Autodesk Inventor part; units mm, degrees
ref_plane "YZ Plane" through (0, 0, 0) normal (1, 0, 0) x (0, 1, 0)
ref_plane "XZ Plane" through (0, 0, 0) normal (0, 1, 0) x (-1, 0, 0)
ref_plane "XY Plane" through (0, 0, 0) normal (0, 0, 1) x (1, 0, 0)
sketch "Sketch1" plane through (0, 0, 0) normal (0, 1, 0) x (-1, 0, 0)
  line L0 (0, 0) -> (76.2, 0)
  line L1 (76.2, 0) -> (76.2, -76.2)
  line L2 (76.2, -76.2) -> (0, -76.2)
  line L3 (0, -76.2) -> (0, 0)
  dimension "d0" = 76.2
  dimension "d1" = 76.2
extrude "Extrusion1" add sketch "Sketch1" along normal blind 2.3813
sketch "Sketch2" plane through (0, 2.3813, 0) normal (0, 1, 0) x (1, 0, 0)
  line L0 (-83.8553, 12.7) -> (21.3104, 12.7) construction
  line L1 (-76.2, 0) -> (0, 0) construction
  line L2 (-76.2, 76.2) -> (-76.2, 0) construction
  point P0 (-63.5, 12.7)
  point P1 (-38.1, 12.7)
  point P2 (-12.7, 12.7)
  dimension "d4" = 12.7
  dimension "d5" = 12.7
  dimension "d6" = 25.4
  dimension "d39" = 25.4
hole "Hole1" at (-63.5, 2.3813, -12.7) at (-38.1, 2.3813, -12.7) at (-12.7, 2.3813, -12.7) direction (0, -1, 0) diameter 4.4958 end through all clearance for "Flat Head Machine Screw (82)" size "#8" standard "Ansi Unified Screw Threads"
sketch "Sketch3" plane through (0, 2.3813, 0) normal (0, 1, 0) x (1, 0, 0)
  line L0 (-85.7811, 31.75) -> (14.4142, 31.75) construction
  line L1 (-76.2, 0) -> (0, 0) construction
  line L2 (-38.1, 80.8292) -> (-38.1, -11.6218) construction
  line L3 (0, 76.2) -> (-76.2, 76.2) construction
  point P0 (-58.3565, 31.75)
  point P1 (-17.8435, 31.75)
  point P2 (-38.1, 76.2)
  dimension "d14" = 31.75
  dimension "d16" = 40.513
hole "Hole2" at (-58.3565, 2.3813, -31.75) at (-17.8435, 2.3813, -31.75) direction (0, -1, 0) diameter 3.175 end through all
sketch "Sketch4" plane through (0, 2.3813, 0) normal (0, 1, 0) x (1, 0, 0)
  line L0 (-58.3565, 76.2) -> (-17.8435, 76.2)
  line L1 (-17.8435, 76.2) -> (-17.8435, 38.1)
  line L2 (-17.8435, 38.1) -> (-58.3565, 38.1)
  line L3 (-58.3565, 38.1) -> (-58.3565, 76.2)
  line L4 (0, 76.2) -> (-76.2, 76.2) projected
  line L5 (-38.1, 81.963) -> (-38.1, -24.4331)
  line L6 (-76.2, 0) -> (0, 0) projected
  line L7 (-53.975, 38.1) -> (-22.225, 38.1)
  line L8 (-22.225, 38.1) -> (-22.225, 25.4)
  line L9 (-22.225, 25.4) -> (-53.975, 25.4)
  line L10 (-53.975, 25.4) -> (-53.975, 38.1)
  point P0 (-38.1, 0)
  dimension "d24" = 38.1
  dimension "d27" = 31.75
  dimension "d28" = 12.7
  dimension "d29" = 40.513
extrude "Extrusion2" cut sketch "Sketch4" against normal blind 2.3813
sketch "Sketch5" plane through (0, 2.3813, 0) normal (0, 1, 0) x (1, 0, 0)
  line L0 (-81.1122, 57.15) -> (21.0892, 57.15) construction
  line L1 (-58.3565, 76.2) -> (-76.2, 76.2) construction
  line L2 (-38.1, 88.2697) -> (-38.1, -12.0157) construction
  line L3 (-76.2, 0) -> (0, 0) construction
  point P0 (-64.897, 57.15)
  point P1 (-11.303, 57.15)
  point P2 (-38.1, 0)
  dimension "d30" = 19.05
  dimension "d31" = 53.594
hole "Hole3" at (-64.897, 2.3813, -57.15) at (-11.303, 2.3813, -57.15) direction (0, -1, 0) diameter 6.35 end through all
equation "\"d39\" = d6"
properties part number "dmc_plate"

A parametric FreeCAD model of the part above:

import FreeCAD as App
import Part
import Sketcher

V = App.Vector
Q = App.Units.Quantity

doc = App.newDocument("Part")
body = doc.addObject("PartDesign::Body", "Body")

sketch1 = body.newObject("Sketcher::SketchObject", "Sketch")
sketch1.AttachmentSupport = (doc.getObject("XZ_Plane"), [""])
sketch1.MapMode = "FlatFace"
sketch1.addGeometry(Part.LineSegment(V(-76.2, 0, 0), V(0, 0, 0)), False)
sketch1.addGeometry(Part.LineSegment(V(0, 0, 0), V(0, -76.2, 0)), False)
sketch1.addGeometry(Part.LineSegment(V(0, -76.2, 0), V(-76.2, -76.2, 0)), False)
sketch1.addGeometry(Part.LineSegment(V(-76.2, -76.2, 0), V(-76.2, 0, 0)), False)
sketch1.addConstraint(Sketcher.Constraint("Coincident", 0, 2, 1, 1))
sketch1.addConstraint(Sketcher.Constraint("Coincident", 1, 2, 2, 1))
sketch1.addConstraint(Sketcher.Constraint("Coincident", 2, 2, 3, 1))
sketch1.addConstraint(Sketcher.Constraint("Coincident", 3, 2, 0, 1))
sketch1.addConstraint(Sketcher.Constraint("Horizontal", 0))
sketch1.addConstraint(Sketcher.Constraint("Vertical", 1))
sketch1.addConstraint(Sketcher.Constraint("Horizontal", 2))
sketch1.addConstraint(Sketcher.Constraint("Vertical", 3))
sketch1.addConstraint(Sketcher.Constraint("Coincident", 0, 2, -1, 1))
sketch1.addConstraint(Sketcher.Constraint("Equal", 2, 1))
sketch1.addConstraint(Sketcher.Constraint("DistanceX", 0, 1, 0, 2, Q("3 in")))
pad1 = body.newObject("PartDesign::Pad", "Pad")
pad1.Profile = sketch1
pad1.Length = Q("0.093752 in")
pad1.Reversed = True

sketch2 = body.newObject("Sketcher::SketchObject", "Sketch001")
sketch2.AttachmentSupport = (doc.getObject("XZ_Plane"), [""])
sketch2.MapMode = "FlatFace"
sketch2.AttachmentOffset = App.Placement(V(0, 0, -0.093752 * 25.4), App.Rotation())
sketch2.addGeometry(Part.Circle(V(-63.5, -12.7, 0), V(0, 0, 1), 2.2479), False)
sketch2.addGeometry(Part.Circle(V(-38.1, -12.7, 0), V(0, 0, 1), 2.2479), False)
sketch2.addGeometry(Part.Circle(V(-12.7, -12.7, 0), V(0, 0, 1), 2.2479), False)
sketch2.addConstraint(Sketcher.Constraint("Equal", 0, 1))
sketch2.addConstraint(Sketcher.Constraint("Equal", 1, 2))
sketch2.addConstraint(Sketcher.Constraint("Horizontal", 0, 3, 1, 3))
sketch2.addConstraint(Sketcher.Constraint("Horizontal", 1, 3, 2, 3))
sketch2.addConstraint(Sketcher.Constraint("Diameter", 0, Q("0.177 in")))
sketch2.addConstraint(Sketcher.Constraint("DistanceX", 0, 3, 1, 3, Q("1 in")))
sketch2.addConstraint(Sketcher.Constraint("DistanceX", 1, 3, 2, 3, Q("1 in")))
sketch2.addConstraint(Sketcher.Constraint("DistanceX", 0, 3, -1, 1, Q("2.5 in")))
sketch2.addConstraint(Sketcher.Constraint("DistanceY", 0, 3, -1, 1, Q("0.5 in")))
doc.recompute()
hole = body.newObject("PartDesign::Hole", "Hole")
hole.Profile = sketch2
hole.ThreadType = "None"
hole.Diameter = Q("0.177 in")
hole.DepthType = "ThroughAll"
hole.Reversed = True

sketch3 = body.newObject("Sketcher::SketchObject", "Sketch002")
sketch3.AttachmentSupport = (doc.getObject("XZ_Plane"), [""])
sketch3.MapMode = "FlatFace"
sketch3.AttachmentOffset = App.Placement(V(0, 0, -0.093752 * 25.4), App.Rotation())
sketch3.addGeometry(Part.Circle(V(-58.3565, -31.75, 0), V(0, 0, 1), 1.5875), False)
sketch3.addGeometry(Part.Circle(V(-17.8435, -31.75, 0), V(0, 0, 1), 1.5875), False)
sketch3.addConstraint(Sketcher.Constraint("Equal", 0, 1))
sketch3.addConstraint(Sketcher.Constraint("Horizontal", 0, 3, 1, 3))
sketch3.addConstraint(Sketcher.Constraint("Diameter", 0, Q("0.125 in")))
sketch3.addConstraint(Sketcher.Constraint("DistanceY", 0, 3, -1, 1, Q("1.25 in")))
sketch3.addConstraint(Sketcher.Constraint("DistanceX", 0, 3, 1, 3, Q("1.595 in")))
sketch3.addConstraint(Sketcher.Constraint("DistanceX", 0, 3, -1, 1, Q("2.2975 in")))
doc.recompute()
hole2 = body.newObject("PartDesign::Hole", "Hole001")
hole2.Profile = sketch3
hole2.ThreadType = "None"
hole2.Diameter = Q("0.125 in")
hole2.DepthType = "ThroughAll"
hole2.Reversed = True

sketch4 = body.newObject("Sketcher::SketchObject", "Sketch003")
sketch4.AttachmentSupport = (doc.getObject("XZ_Plane"), [""])
sketch4.MapMode = "FlatFace"
sketch4.AttachmentOffset = App.Placement(V(0, 0, -0.093752 * 25.4), App.Rotation())
sketch4.addGeometry(Part.LineSegment(V(-58.3565, -76.2, 0), V(-58.3565, -38.1, 0)), False)
sketch4.addGeometry(Part.LineSegment(V(-58.3565, -38.1, 0), V(-53.975, -38.1, 0)), False)
sketch4.addGeometry(Part.LineSegment(V(-53.975, -38.1, 0), V(-53.975, -25.4, 0)), False)
sketch4.addGeometry(Part.LineSegment(V(-53.975, -25.4, 0), V(-22.225, -25.4, 0)), False)
sketch4.addGeometry(Part.LineSegment(V(-22.225, -25.4, 0), V(-22.225, -38.1, 0)), False)
sketch4.addGeometry(Part.LineSegment(V(-22.225, -38.1, 0), V(-17.8435, -38.1, 0)), False)
sketch4.addGeometry(Part.LineSegment(V(-17.8435, -38.1, 0), V(-17.8435, -76.2, 0)), False)
sketch4.addGeometry(Part.LineSegment(V(-17.8435, -76.2, 0), V(-58.3565, -76.2, 0)), False)
sketch4.addConstraint(Sketcher.Constraint("Coincident", 0, 2, 1, 1))
sketch4.addConstraint(Sketcher.Constraint("Coincident", 1, 2, 2, 1))
sketch4.addConstraint(Sketcher.Constraint("Coincident", 2, 2, 3, 1))
sketch4.addConstraint(Sketcher.Constraint("Coincident", 3, 2, 4, 1))
sketch4.addConstraint(Sketcher.Constraint("Coincident", 4, 2, 5, 1))
sketch4.addConstraint(Sketcher.Constraint("Coincident", 5, 2, 6, 1))
sketch4.addConstraint(Sketcher.Constraint("Coincident", 6, 2, 7, 1))
sketch4.addConstraint(Sketcher.Constraint("Coincident", 7, 2, 0, 1))
sketch4.addConstraint(Sketcher.Constraint("Vertical", 0))
sketch4.addConstraint(Sketcher.Constraint("Horizontal", 1))
sketch4.addConstraint(Sketcher.Constraint("Vertical", 2))
sketch4.addConstraint(Sketcher.Constraint("Horizontal", 3))
sketch4.addConstraint(Sketcher.Constraint("Vertical", 4))
sketch4.addConstraint(Sketcher.Constraint("Horizontal", 5))
sketch4.addConstraint(Sketcher.Constraint("Vertical", 6))
sketch4.addConstraint(Sketcher.Constraint("Horizontal", 7))
sketch4.addConstraint(Sketcher.Constraint("Horizontal", 1, 2, 4, 2))
sketch4.addConstraint(Sketcher.Constraint("Equal", 1, 5))
sketch4.addConstraint(Sketcher.Constraint("DistanceY", 0, 1, 0, 2, Q("1.5 in")))
sketch4.addConstraint(Sketcher.Constraint("DistanceY", 2, 1, 2, 2, Q("0.5 in")))
sketch4.addConstraint(Sketcher.Constraint("DistanceX", 3, 1, 3, 2, Q("1.25 in")))
sketch4.addConstraint(Sketcher.Constraint("DistanceY", 0, 2, -1, 1, Q("1.5 in")))
sketch4.addConstraint(Sketcher.Constraint("DistanceX", 7, 2, 7, 1, Q("1.595 in")))
sketch4.addConstraint(Sketcher.Constraint("DistanceX", 1, 2, -1, 1, Q("2.125 in")))
pocket1 = body.newObject("PartDesign::Pocket", "Pocket")
pocket1.Profile = sketch4
pocket1.Length = Q("0.093752 in")
pocket1.Reversed = True

sketch5 = body.newObject("Sketcher::SketchObject", "Sketch004")
sketch5.AttachmentSupport = (doc.getObject("XZ_Plane"), [""])
sketch5.MapMode = "FlatFace"
sketch5.AttachmentOffset = App.Placement(V(0, 0, -0.093752 * 25.4), App.Rotation())
sketch5.addGeometry(Part.Circle(V(-64.897, -57.15, 0), V(0, 0, 1), 3.175), False)
sketch5.addGeometry(Part.Circle(V(-11.303, -57.15, 0), V(0, 0, 1), 3.175), False)
sketch5.addConstraint(Sketcher.Constraint("Equal", 0, 1))
sketch5.addConstraint(Sketcher.Constraint("Horizontal", 0, 3, 1, 3))
sketch5.addConstraint(Sketcher.Constraint("Diameter", 0, Q("0.25 in")))
sketch5.addConstraint(Sketcher.Constraint("DistanceY", 0, 3, -1, 1, Q("2.25 in")))
sketch5.addConstraint(Sketcher.Constraint("DistanceX", 0, 3, 1, 3, Q("2.11 in")))
sketch5.addConstraint(Sketcher.Constraint("DistanceX", 0, 3, -1, 1, Q("2.555 in")))
doc.recompute()
hole3 = body.newObject("PartDesign::Hole", "Hole002")
hole3.Profile = sketch5
hole3.ThreadType = "None"
hole3.Diameter = Q("0.25 in")
hole3.DepthType = "ThroughAll"
hole3.Reversed = True

doc.recompute()
